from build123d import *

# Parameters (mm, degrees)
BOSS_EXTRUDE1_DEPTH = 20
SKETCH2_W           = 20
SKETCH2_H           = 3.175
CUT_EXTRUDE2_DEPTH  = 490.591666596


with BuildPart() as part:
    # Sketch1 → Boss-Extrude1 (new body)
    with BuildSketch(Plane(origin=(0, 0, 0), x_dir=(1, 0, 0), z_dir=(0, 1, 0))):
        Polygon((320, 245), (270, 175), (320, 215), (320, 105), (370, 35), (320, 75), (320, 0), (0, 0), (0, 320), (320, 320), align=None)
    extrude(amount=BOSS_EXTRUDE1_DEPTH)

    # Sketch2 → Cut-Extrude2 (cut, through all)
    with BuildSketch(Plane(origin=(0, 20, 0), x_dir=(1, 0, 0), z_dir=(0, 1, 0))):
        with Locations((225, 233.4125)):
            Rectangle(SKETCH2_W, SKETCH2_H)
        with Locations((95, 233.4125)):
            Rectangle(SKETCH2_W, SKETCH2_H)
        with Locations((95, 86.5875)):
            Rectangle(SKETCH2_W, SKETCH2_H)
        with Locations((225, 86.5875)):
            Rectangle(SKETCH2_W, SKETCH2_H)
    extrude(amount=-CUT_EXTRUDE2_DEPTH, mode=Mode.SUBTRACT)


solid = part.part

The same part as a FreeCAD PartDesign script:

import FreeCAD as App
import Part
import Sketcher
from FreeCAD import Vector
Q = App.Units.Quantity

doc = App.newDocument("Part")
params = doc.addObject("Spreadsheet::Sheet", "Params")
for row, (alias, value) in enumerate([
    ("sketch1_width", "320 mm"),
    ("sketch1_height", "75 mm"),
    ("sketch1_height2", "110 mm"),
    ("pad1_length", "20 mm"),
    ("sketch2_width", "20 mm"),
], start=1):
    params.set(f"A{row}", alias)
    params.set(f"B{row}", "=" + value)
    params.setAlias(f"B{row}", alias)

body = doc.addObject("PartDesign::Body", "Body")

# Sketch on XZ plane
sketch1 = body.newObject("Sketcher::SketchObject", "Sketch")
sketch1.AttachmentSupport = (doc.getObject("XZ_Plane"), [""])
sketch1.MapMode = "FlatFace"
sketch1.addGeometry([
    Part.LineSegment(Vector(270, -175, 0), Vector(320, -245, 0)),  # 0
    Part.LineSegment(Vector(320, -245, 0), Vector(320, -320, 0)),  # 1
    Part.LineSegment(Vector(320, -320, 0), Vector(0, -320, 0)),  # 2
    Part.LineSegment(Vector(0, -320, 0), Vector(0, 0, 0)),  # 3
    Part.LineSegment(Vector(0, 0, 0), Vector(320, 0, 0)),  # 4
    Part.LineSegment(Vector(320, 0, 0), Vector(320, -75, 0)),  # 5
    Part.LineSegment(Vector(320, -75, 0), Vector(370, -35, 0)),  # 6
    Part.LineSegment(Vector(370, -35, 0), Vector(320, -105, 0)),  # 7
    Part.LineSegment(Vector(320, -105, 0), Vector(320, -215, 0)),  # 8
    Part.LineSegment(Vector(320, -215, 0), Vector(270, -175, 0)),  # 9
], False)
sketch1.addConstraint([
    Sketcher.Constraint("Coincident", 0, 2, 1, 1),
    Sketcher.Constraint("Coincident", 1, 2, 2, 1),
    Sketcher.Constraint("Coincident", 2, 2, 3, 1),
    Sketcher.Constraint("Coincident", 3, 2, 4, 1),
    Sketcher.Constraint("Coincident", 4, 2, 5, 1),
    Sketcher.Constraint("Coincident", 5, 2, 6, 1),
    Sketcher.Constraint("Coincident", 6, 2, 7, 1),
    Sketcher.Constraint("Coincident", 7, 2, 8, 1),
    Sketcher.Constraint("Coincident", 8, 2, 9, 1),
    Sketcher.Constraint("Coincident", 9, 2, 0, 1),
    Sketcher.Constraint("Vertical", 1),
    Sketcher.Constraint("Horizontal", 2),
    Sketcher.Constraint("Vertical", 3),
    Sketcher.Constraint("Horizontal", 4),
    Sketcher.Constraint("Vertical", 5),
    Sketcher.Constraint("Vertical", 8),
    Sketcher.Constraint("Coincident", 3, 2, -1, 1),
    Sketcher.Constraint("Vertical", 1, 2, 4, 2),
    Sketcher.Constraint("Vertical", 5, 2, 7, 2),
    Sketcher.Constraint("Equal", 4, 3),
    Sketcher.Constraint("Equal", 1, 5),
    Sketcher.Constraint("Equal", 0, 7),
    Sketcher.Constraint("Equal", 6, 9),
    Sketcher.Constraint("DistanceX", 2, 2, 2, 1, Q("320 mm")),
    Sketcher.Constraint("DistanceY", 1, 2, 1, 1, Q("75 mm")),
    Sketcher.Constraint("DistanceY", 8, 2, 8, 1, Q("110 mm")),
    Sketcher.Constraint("DistanceX", -1, 1, 6, 2, Q("370 mm")),
    Sketcher.Constraint("DistanceY", 6, 2, -1, 1, Q("35 mm")),
    Sketcher.Constraint("DistanceY", 7, 2, -1, 1, Q("105 mm")),
])
sketch1.setExpression("Constraints[23]", "Params.sketch1_width")
sketch1.setExpression("Constraints[24]", "Params.sketch1_height")
sketch1.setExpression("Constraints[25]", "Params.sketch1_height2")
pad1 = body.newObject("PartDesign::Pad", "Pad")
pad1.Profile = sketch1
pad1.setExpression("Length", "Params.pad1_length")
pad1.Reversed = True

# Sketch on XZ plane
sketch2 = body.newObject("Sketcher::SketchObject", "Sketch001")
sketch2.AttachmentSupport = (doc.getObject("XZ_Plane"), [""])
sketch2.MapMode = "FlatFace"
sketch2.AttachmentOffset = App.Placement(Vector(0, 0, -20), App.Rotation())
sketch2.addGeometry([
    Part.LineSegment(Vector(215, -235, 0), Vector(215, -231.8, 0)),  # 0
    Part.LineSegment(Vector(215, -231.8, 0), Vector(235, -231.8, 0)),  # 1
    Part.LineSegment(Vector(235, -231.8, 0), Vector(235, -235, 0)),  # 2
    Part.LineSegment(Vector(235, -235, 0), Vector(215, -235, 0)),  # 3
    Part.LineSegment(Vector(85, -235, 0), Vector(85, -231.8, 0)),  # 4
    Part.LineSegment(Vector(85, -231.8, 0), Vector(105, -231.8, 0)),  # 5
    Part.LineSegment(Vector(105, -231.8, 0), Vector(105, -235, 0)),  # 6
    Part.LineSegment(Vector(105, -235, 0), Vector(85, -235, 0)),  # 7
    Part.LineSegment(Vector(85, -88.2, 0), Vector(85, -85, 0)),  # 8
    Part.LineSegment(Vector(85, -85, 0), Vector(105, -85, 0)),  # 9
    Part.LineSegment(Vector(105, -85, 0), Vector(105, -88.2, 0)),  # 10
    Part.LineSegment(Vector(105, -88.2, 0), Vector(85, -88.2, 0)),  # 11
    Part.LineSegment(Vector(215, -88.2, 0), Vector(215, -85, 0)),  # 12
    Part.LineSegment(Vector(215, -85, 0), Vector(235, -85, 0)),  # 13
    Part.LineSegment(Vector(235, -85, 0), Vector(235, -88.2, 0)),  # 14
    Part.LineSegment(Vector(235, -88.2, 0), Vector(215, -88.2, 0)),  # 15
], False)
sketch2.addConstraint([
    Sketcher.Constraint("Coincident", 0, 2, 1, 1),
    Sketcher.Constraint("Coincident", 1, 2, 2, 1),
    Sketcher.Constraint("Coincident", 2, 2, 3, 1),
    Sketcher.Constraint("Coincident", 3, 2, 0, 1),
    Sketcher.Constraint("Coincident", 4, 2, 5, 1),
    Sketcher.Constraint("Coincident", 5, 2, 6, 1),
    Sketcher.Constraint("Coincident", 6, 2, 7, 1),
    Sketcher.Constraint("Coincident", 7, 2, 4, 1),
    Sketcher.Constraint("Coincident", 8, 2, 9, 1),
    Sketcher.Constraint("Coincident", 9, 2, 10, 1),
    Sketcher.Constraint("Coincident", 10, 2, 11, 1),
    Sketcher.Constraint("Coincident", 11, 2, 8, 1),
    Sketcher.Constraint("Coincident", 12, 2, 13, 1),
    Sketcher.Constraint("Coincident", 13, 2, 14, 1),
    Sketcher.Constraint("Coincident", 14, 2, 15, 1),
    Sketcher.Constraint("Coincident", 15, 2, 12, 1),
    Sketcher.Constraint("Vertical", 0),
    Sketcher.Constraint("Horizontal", 1),
    Sketcher.Constraint("Vertical", 2),
    Sketcher.Constraint("Horizontal", 3),
    Sketcher.Constraint("Vertical", 4),
    Sketcher.Constraint("Horizontal", 5),
    Sketcher.Constraint("Vertical", 6),
    Sketcher.Constraint("Horizontal", 7),
    Sketcher.Constraint("Vertical", 8),
    Sketcher.Constraint("Horizontal", 9),
    Sketcher.Constraint("Vertical", 10),
    Sketcher.Constraint("Horizontal", 11),
    Sketcher.Constraint("Vertical", 12),
    Sketcher.Constraint("Horizontal", 13),
    Sketcher.Constraint("Vertical", 14),
    Sketcher.Constraint("Horizontal", 15),
    Sketcher.Constraint("Horizontal", 1, 2, 4, 2),
    Sketcher.Constraint("Horizontal", 3, 2, 6, 2),
    Sketcher.Constraint("Horizontal", 9, 2, 12, 2),
    Sketcher.Constraint("Horizontal", 11, 2, 14, 2),
    Sketcher.Constraint("Vertical", 7, 2, 8, 2),
    Sketcher.Constraint("Vertical", 6, 2, 9, 2),
    Sketcher.Constraint("Vertical", 3, 2, 12, 2),
    Sketcher.Constraint("Vertical", 2, 2, 13, 2),
    Sketcher.Constraint("Equal", 3, 5),
    Sketcher.Constraint("Equal", 6, 8),
    Sketcher.Constraint("DistanceX", 1, 1, 1, 2, Q("20 mm")),
    Sketcher.Constraint("DistanceX", -1, 1, 0, 2, Q("215 mm")),
    Sketcher.Constraint("DistanceY", 2, 2, -1, 1, Q("235 mm")),
    Sketcher.Constraint("DistanceX", -1, 1, 4, 2, Q("85 mm")),
    Sketcher.Constraint("DistanceY", 8, 2, -1, 1, Q("85 mm")),
    Sketcher.Constraint("DistanceY", 0, 1, 0, 2, Q("3.175 mm")),
])
sketch2.setExpression("Constraints[42]", "Params.sketch2_width")
pocket1 = body.newObject("PartDesign::Pocket", "Pocket")
pocket1.Profile = sketch2
pocket1.Type = "ThroughAll"
pocket1.Reversed = True

doc.recompute()
